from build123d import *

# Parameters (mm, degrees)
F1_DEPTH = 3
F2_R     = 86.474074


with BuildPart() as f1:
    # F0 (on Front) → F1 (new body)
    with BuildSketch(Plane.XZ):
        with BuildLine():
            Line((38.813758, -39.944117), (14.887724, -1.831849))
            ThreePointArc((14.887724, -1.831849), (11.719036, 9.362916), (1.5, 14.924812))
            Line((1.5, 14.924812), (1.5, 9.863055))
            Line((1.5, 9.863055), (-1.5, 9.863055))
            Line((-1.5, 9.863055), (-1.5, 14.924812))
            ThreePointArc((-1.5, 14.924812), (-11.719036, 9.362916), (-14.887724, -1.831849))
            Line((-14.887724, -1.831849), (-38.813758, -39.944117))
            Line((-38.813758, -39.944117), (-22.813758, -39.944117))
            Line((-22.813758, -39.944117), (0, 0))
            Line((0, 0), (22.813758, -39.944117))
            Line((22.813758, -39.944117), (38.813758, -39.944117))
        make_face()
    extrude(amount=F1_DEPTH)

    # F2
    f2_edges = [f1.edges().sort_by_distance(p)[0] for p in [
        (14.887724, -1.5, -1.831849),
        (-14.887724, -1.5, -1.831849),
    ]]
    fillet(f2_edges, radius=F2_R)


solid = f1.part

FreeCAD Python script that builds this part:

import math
import FreeCAD as App
import Part
import Sketcher


def edges_at(feature, points):
    """Names of the edges that pass closest to the given points."""
    edges = feature.Shape.Edges
    near = lambda p: min(range(len(edges)), key=lambda i: edges[i].distToShape(Part.Vertex(*p))[0])
    return sorted({f"Edge{near(p) + 1}" for p in points})

doc = App.newDocument("Part")
params = doc.addObject("Spreadsheet::Sheet", "Params")
for row, (alias, value) in enumerate([
    ("sketch1_radius", "15 mm"),
    ("sketch1_width", "3 mm"),
    ("sketch1_width2", "16 mm"),
    ("sketch1_length", "45.000001 mm"),
    ("sketch1_length2", "46 mm"),
    ("pad1_length", "3 mm"),
    ("fillet_radius", "86.474074 mm"),
], start=1):
    params.set(f"A{row}", alias)
    params.set(f"B{row}", "=" + value)
    params.setAlias(f"B{row}", alias)

body = doc.addObject("PartDesign::Body", "Body")

# Sketch on XZ plane
sketch1 = body.newObject("Sketcher::SketchObject", "Sketch")
sketch1.AttachmentSupport = (doc.getObject("XZ_Plane"), [""])
sketch1.MapMode = "FlatFace"
sketch1.addGeometry([
    Part.LineSegment(App.Vector(38.813758, -39.944117, 0), App.Vector(14.887724, -1.831849, 0)),  # 0
    Part.ArcOfCircle(Part.Circle(App.Vector(-0.000001, 0, 0), App.Vector(0, 0, 1), 15), math.radians(-7.014658), math.radians(84.260827)),  # 1
    Part.LineSegment(App.Vector(1.5, 14.924812, 0), App.Vector(1.5, 9.863055, 0)),  # 2
    Part.LineSegment(App.Vector(1.5, 9.863055, 0), App.Vector(-1.5, 9.863055, 0)),  # 3
    Part.LineSegment(App.Vector(-1.5, 9.863055, 0), App.Vector(-1.5, 14.924812, 0)),  # 4
    Part.ArcOfCircle(Part.Circle(App.Vector(0.000001, 0, 0), App.Vector(0, 0, 1), 15), math.radians(95.739173), math.radians(187.014658)),  # 5
    Part.LineSegment(App.Vector(-14.887724, -1.831849, 0), App.Vector(-38.813758, -39.944117, 0)),  # 6
    Part.LineSegment(App.Vector(-38.813758, -39.944117, 0), App.Vector(-22.813758, -39.944117, 0)),  # 7
    Part.LineSegment(App.Vector(-22.813758, -39.944117, 0), App.Vector(0, 0, 0)),  # 8
    Part.LineSegment(App.Vector(0, 0, 0), App.Vector(22.813758, -39.944117, 0)),  # 9
    Part.LineSegment(App.Vector(22.813758, -39.944117, 0), App.Vector(38.813758, -39.944117, 0)),  # 10
], False)
sketch1.addConstraint([
    Sketcher.Constraint("Coincident", 0, 2, 1, 1),
    Sketcher.Constraint("Coincident", 1, 2, 2, 1),
    Sketcher.Constraint("Coincident", 2, 2, 3, 1),
    Sketcher.Constraint("Coincident", 3, 2, 4, 1),
    Sketcher.Constraint("Coincident", 4, 2, 5, 1),
    Sketcher.Constraint("Coincident", 5, 2, 6, 1),
    Sketcher.Constraint("Coincident", 6, 2, 7, 1),
    Sketcher.Constraint("Coincident", 7, 2, 8, 1),
    Sketcher.Constraint("Coincident", 8, 2, 9, 1),
    Sketcher.Constraint("Coincident", 9, 2, 10, 1),
    Sketcher.Constraint("Coincident", 10, 2, 0, 1),
    Sketcher.Constraint("Vertical", 2),
    Sketcher.Constraint("Horizontal", 3),
    Sketcher.Constraint("Vertical", 4),
    Sketcher.Constraint("Horizontal", 7),
    Sketcher.Constraint("Horizontal", 10),
    Sketcher.Constraint("Coincident", 1, 3, -1, 1),
    Sketcher.Constraint("Coincident", 5, 3, -1, 1),
    Sketcher.Constraint("Coincident", 8, 2, -1, 1),
    Sketcher.Constraint("Equal", 1, 5),
    Sketcher.Constraint("Symmetric", 7, 2, 9, 2, -2),
    Sketcher.Constraint("Horizontal", 1, 2, 4, 2),
    Sketcher.Constraint("Horizontal", 0, 2, 5, 2),
    Sketcher.Constraint("Equal", 7, 10),
    Sketcher.Constraint("Radius", 1, 15.0),
    Sketcher.Constraint("DistanceX", 3, 2, 3, 1, 3.0),
    Sketcher.Constraint("DistanceX", 7, 1, 7, 2, 16.0),
    Sketcher.Constraint("Distance", 0, 45.000001),
    Sketcher.Constraint("Distance", 8, 46.0),
    Sketcher.Constraint("DistanceY", 2, 2, 2, 1, 5.061757),
    Sketcher.Constraint("DistanceY", 0, 2, -1, 1, 1.831849),
])
sketch1.setExpression("Constraints[24]", "Params.sketch1_radius")
sketch1.setExpression("Constraints[25]", "Params.sketch1_width")
sketch1.setExpression("Constraints[26]", "Params.sketch1_width2")
sketch1.setExpression("Constraints[27]", "Params.sketch1_length")
sketch1.setExpression("Constraints[28]", "Params.sketch1_length2")
pad1 = body.newObject("PartDesign::Pad", "Pad")
pad1.Profile = sketch1
pad1.setExpression("Length", "Params.pad1_length")
doc.recompute()

fillet = body.newObject("PartDesign::Fillet", "Fillet")
fillet.Base = (pad1, edges_at(pad1, [(14.888, -1.5, -1.832), (-14.888, -1.5, -1.832)]))
fillet.setExpression("Radius", "Params.fillet_radius")

doc.recompute()
